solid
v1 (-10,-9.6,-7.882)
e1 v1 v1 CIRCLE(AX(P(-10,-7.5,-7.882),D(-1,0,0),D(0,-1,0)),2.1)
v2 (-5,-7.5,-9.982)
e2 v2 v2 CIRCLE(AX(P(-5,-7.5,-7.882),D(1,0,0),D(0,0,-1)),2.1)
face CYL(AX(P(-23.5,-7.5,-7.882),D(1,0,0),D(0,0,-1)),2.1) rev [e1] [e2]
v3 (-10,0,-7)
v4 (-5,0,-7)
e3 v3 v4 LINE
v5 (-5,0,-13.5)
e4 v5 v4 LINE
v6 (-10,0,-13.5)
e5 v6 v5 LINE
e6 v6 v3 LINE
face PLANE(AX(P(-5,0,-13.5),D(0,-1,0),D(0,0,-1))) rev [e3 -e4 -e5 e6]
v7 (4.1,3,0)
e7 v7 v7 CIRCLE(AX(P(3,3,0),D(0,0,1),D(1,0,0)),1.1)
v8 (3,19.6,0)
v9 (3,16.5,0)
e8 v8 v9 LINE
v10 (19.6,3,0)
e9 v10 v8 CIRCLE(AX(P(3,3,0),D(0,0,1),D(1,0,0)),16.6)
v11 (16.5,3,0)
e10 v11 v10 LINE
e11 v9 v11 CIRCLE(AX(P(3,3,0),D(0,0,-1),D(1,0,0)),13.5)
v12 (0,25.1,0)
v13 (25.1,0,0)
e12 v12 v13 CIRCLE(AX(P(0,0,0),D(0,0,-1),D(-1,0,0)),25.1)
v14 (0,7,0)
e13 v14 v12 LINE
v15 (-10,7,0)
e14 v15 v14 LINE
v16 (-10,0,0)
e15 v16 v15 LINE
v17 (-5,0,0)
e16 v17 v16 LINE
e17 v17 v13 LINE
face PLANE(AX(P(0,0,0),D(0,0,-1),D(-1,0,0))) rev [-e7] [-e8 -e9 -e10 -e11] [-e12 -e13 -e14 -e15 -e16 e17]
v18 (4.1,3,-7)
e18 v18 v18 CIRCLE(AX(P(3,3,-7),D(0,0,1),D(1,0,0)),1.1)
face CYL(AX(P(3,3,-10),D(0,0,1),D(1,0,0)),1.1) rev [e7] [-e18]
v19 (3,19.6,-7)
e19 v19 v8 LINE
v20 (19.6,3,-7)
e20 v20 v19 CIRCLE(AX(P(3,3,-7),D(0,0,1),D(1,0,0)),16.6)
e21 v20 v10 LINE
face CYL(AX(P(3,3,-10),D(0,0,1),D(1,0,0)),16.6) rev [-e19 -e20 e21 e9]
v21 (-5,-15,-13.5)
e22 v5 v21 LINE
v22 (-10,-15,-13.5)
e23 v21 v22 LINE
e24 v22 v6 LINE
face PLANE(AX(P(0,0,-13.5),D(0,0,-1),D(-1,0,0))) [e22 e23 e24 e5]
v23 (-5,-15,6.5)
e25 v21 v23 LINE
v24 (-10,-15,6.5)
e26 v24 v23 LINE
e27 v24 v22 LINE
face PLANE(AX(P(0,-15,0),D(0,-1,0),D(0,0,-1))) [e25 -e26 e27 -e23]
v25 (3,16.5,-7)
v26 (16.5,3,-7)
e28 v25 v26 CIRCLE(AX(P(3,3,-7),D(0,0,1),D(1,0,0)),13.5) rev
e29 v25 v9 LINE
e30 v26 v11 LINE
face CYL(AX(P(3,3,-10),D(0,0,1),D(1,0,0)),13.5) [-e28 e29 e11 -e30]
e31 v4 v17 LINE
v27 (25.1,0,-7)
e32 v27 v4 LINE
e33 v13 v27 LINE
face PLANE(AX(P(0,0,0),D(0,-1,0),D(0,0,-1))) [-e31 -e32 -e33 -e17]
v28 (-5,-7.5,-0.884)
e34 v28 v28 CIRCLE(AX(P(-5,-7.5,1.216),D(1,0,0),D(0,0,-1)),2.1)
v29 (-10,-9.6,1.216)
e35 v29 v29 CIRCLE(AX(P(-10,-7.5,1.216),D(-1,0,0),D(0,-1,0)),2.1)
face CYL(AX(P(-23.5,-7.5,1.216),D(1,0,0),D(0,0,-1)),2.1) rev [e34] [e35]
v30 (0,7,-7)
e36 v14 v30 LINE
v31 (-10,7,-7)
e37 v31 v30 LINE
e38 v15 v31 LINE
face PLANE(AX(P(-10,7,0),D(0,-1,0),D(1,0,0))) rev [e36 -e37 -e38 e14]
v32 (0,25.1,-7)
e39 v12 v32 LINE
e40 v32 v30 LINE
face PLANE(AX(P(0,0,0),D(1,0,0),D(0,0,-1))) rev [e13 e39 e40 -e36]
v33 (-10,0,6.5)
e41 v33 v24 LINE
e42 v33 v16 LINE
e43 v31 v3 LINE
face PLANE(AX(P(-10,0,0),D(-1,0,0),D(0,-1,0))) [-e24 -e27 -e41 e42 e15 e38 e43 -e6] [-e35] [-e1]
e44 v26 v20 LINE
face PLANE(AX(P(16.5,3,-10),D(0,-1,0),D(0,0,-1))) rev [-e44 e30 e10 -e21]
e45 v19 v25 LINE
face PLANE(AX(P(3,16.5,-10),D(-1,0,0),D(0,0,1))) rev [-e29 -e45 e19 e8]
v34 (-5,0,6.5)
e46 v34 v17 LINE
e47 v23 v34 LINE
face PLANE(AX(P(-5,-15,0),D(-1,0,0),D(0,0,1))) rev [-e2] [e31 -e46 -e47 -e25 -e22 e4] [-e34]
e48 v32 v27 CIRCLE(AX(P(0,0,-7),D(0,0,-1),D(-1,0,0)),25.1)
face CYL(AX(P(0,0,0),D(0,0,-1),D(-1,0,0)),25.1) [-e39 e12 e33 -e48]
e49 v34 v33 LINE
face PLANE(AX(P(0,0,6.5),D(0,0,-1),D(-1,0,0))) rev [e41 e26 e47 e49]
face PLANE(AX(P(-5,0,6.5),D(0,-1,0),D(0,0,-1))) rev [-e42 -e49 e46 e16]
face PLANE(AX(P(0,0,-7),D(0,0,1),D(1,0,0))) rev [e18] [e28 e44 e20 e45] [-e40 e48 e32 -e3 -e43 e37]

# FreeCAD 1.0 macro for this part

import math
import FreeCAD as App
import Part
import Sketcher
from FreeCAD import Vector

doc = App.newDocument("Part")
body = doc.addObject("PartDesign::Body", "Body")

sketch1 = body.newObject("Sketcher::SketchObject", "Sketch")
sketch1.AttachmentSupport = (doc.getObject("XZ_Plane"), [""])
sketch1.MapMode = "FlatFace"
sketch1.addGeometry(Part.LineSegment(Vector(0, -7, 0), Vector(0, 0, 0)), False)
sketch1.addGeometry(Part.LineSegment(Vector(0, 0, 0), Vector(25.1, 0, 0)), False)
sketch1.addGeometry(Part.LineSegment(Vector(25.1, 0, 0), Vector(25.1, -7, 0)), False)
sketch1.addGeometry(Part.LineSegment(Vector(25.1, -7, 0), Vector(0, -7, 0)), False)
sketch1.addConstraint(Sketcher.Constraint("Coincident", 0, 2, 1, 1))
sketch1.addConstraint(Sketcher.Constraint("Coincident", 1, 2, 2, 1))
sketch1.addConstraint(Sketcher.Constraint("Coincident", 2, 2, 3, 1))
sketch1.addConstraint(Sketcher.Constraint("Coincident", 3, 2, 0, 1))
sketch1.addConstraint(Sketcher.Constraint("Vertical", 0))
sketch1.addConstraint(Sketcher.Constraint("Horizontal", 1))
sketch1.addConstraint(Sketcher.Constraint("Vertical", 2))
sketch1.addConstraint(Sketcher.Constraint("Horizontal", 3))
sketch1.addConstraint(Sketcher.Constraint("Coincident", 0, 2, -1, 1))
sketch1.addConstraint(Sketcher.Constraint("DistanceY", 0, 1, 0, 2, 7.0))
sketch1.addConstraint(Sketcher.Constraint("DistanceX", 1, 1, 1, 2, 25.1))
revolution = body.newObject("PartDesign::Revolution", "Revolution")
revolution.Profile = sketch1
revolution.ReferenceAxis = (sketch1, ["V_Axis"])
revolution.Angle = 90

sketch2 = body.newObject("Sketcher::SketchObject", "Sketch001")
sketch2.AttachmentSupport = (doc.getObject("YZ_Plane"), [""])
sketch2.MapMode = "FlatFace"
sketch2.addGeometry(Part.LineSegment(Vector(7, -7, 0), Vector(0, -7, 0)), False)
sketch2.addGeometry(Part.LineSegment(Vector(0, -7, 0), Vector(0, 0, 0)), False)
sketch2.addGeometry(Part.LineSegment(Vector(0, 0, 0), Vector(7, 0, 0)), False)
sketch2.addGeometry(Part.LineSegment(Vector(7, 0, 0), Vector(7, -7, 0)), False)
sketch2.addConstraint(Sketcher.Constraint("Coincident", 0, 2, 1, 1))
sketch2.addConstraint(Sketcher.Constraint("Coincident", 1, 2, 2, 1))
sketch2.addConstraint(Sketcher.Constraint("Coincident", 2, 2, 3, 1))
sketch2.addConstraint(Sketcher.Constraint("Coincident", 3, 2, 0, 1))
sketch2.addConstraint(Sketcher.Constraint("Horizontal", 0))
sketch2.addConstraint(Sketcher.Constraint("Vertical", 1))
sketch2.addConstraint(Sketcher.Constraint("Horizontal", 2))
sketch2.addConstraint(Sketcher.Constraint("Vertical", 3))
sketch2.addConstraint(Sketcher.Constraint("Coincident", 1, 2, -1, 1))
sketch2.addConstraint(Sketcher.Constraint("Equal", 2, 1))
sketch2.addConstraint(Sketcher.Constraint("DistanceX", 0, 2, 0, 1, 7.0))
pad1 = body.newObject("PartDesign::Pad", "Pad")
pad1.Profile = sketch2
pad1.Length = 10
pad1.Reversed = True

sketch3 = body.newObject("Sketcher::SketchObject", "Sketch002")
sketch3.AttachmentSupport = (doc.getObject("XZ_Plane"), [""])
sketch3.MapMode = "FlatFace"
sketch3.addGeometry(Part.LineSegment(Vector(-5, -7, 0), Vector(-5, 0, 0)), False)
sketch3.addGeometry(Part.LineSegment(Vector(-5, 0, 0), Vector(-10, 0, 0)), False)
sketch3.addGeometry(Part.LineSegment(Vector(-10, 0, 0), Vector(-10, -7, 0)), False)
sketch3.addGeometry(Part.LineSegment(Vector(-10, -7, 0), Vector(-5, -7, 0)), False)
sketch3.addConstraint(Sketcher.Constraint("Coincident", 0, 2, 1, 1))
sketch3.addConstraint(Sketcher.Constraint("Coincident", 1, 2, 2, 1))
sketch3.addConstraint(Sketcher.Constraint("Coincident", 2, 2, 3, 1))
sketch3.addConstraint(Sketcher.Constraint("Coincident", 3, 2, 0, 1))
sketch3.addConstraint(Sketcher.Constraint("Vertical", 0))
sketch3.addConstraint(Sketcher.Constraint("Horizontal", 1))
sketch3.addConstraint(Sketcher.Constraint("Vertical", 2))
sketch3.addConstraint(Sketcher.Constraint("Horizontal", 3))
sketch3.addConstraint(Sketcher.Constraint("PointOnObject", 0, 2, -1))
sketch3.addConstraint(Sketcher.Constraint("DistanceX", 1, 2, 1, 1, 5.0))
sketch3.addConstraint(Sketcher.Constraint("DistanceY", 0, 1, 0, 2, 7.0))
sketch3.addConstraint(Sketcher.Constraint("DistanceX", 0, 2, -1, 1, 5.0))
pad2 = body.newObject("PartDesign::Pad", "Pad001")
pad2.Profile = sketch3
pad2.Length = 15

sketch4 = body.newObject("Sketcher::SketchObject", "Sketch003")
sketch4.AttachmentSupport = (doc.getObject("XY_Plane"), [""])
sketch4.MapMode = "FlatFace"
sketch4.addGeometry(Part.LineSegment(Vector(-10, 0, 0), Vector(-10, -15, 0)), False)
sketch4.addGeometry(Part.LineSegment(Vector(-10, -15, 0), Vector(-5, -15, 0)), False)
sketch4.addGeometry(Part.LineSegment(Vector(-5, -15, 0), Vector(-5, 0, 0)), False)
sketch4.addGeometry(Part.LineSegment(Vector(-5, 0, 0), Vector(-10, 0, 0)), False)
sketch4.addConstraint(Sketcher.Constraint("Coincident", 0, 2, 1, 1))
sketch4.addConstraint(Sketcher.Constraint("Coincident", 1, 2, 2, 1))
sketch4.addConstraint(Sketcher.Constraint("Coincident", 2, 2, 3, 1))
sketch4.addConstraint(Sketcher.Constraint("Coincident", 3, 2, 0, 1))
sketch4.addConstraint(Sketcher.Constraint("Vertical", 0))
sketch4.addConstraint(Sketcher.Constraint("Horizontal", 1))
sketch4.addConstraint(Sketcher.Constraint("Vertical", 2))
sketch4.addConstraint(Sketcher.Constraint("Horizontal", 3))
sketch4.addConstraint(Sketcher.Constraint("PointOnObject", 2, 2, -1))
sketch4.addConstraint(Sketcher.Constraint("DistanceX", 1, 1, 1, 2, 5.0))
sketch4.addConstraint(Sketcher.Constraint("DistanceY", 0, 2, 0, 1, 15.0))
sketch4.addConstraint(Sketcher.Constraint("DistanceX", 0, 2, -1, 1, 10.0))
pad3 = body.newObject("PartDesign::Pad", "Pad002")
pad3.Profile = sketch4
pad3.Length = 6.5

sketch5 = body.newObject("Sketcher::SketchObject", "Sketch004")
sketch5.AttachmentSupport = (doc.getObject("XY_Plane"), [""])
sketch5.MapMode = "FlatFace"
sketch5.AttachmentOffset = App.Placement(Vector(0, 0, -7), App.Rotation())
sketch5.addGeometry(Part.LineSegment(Vector(-5, 0, 0), Vector(-5, -15, 0)), False)
sketch5.addGeometry(Part.LineSegment(Vector(-5, -15, 0), Vector(-10, -15, 0)), False)
sketch5.addGeometry(Part.LineSegment(Vector(-10, -15, 0), Vector(-10, 0, 0)), False)
sketch5.addGeometry(Part.LineSegment(Vector(-10, 0, 0), Vector(-5, 0, 0)), False)
sketch5.addConstraint(Sketcher.Constraint("Coincident", 0, 2, 1, 1))
sketch5.addConstraint(Sketcher.Constraint("Coincident", 1, 2, 2, 1))
sketch5.addConstraint(Sketcher.Constraint("Coincident", 2, 2, 3, 1))
sketch5.addConstraint(Sketcher.Constraint("Coincident", 3, 2, 0, 1))
sketch5.addConstraint(Sketcher.Constraint("Vertical", 0))
sketch5.addConstraint(Sketcher.Constraint("Horizontal", 1))
sketch5.addConstraint(Sketcher.Constraint("Vertical", 2))
sketch5.addConstraint(Sketcher.Constraint("Horizontal", 3))
sketch5.addConstraint(Sketcher.Constraint("PointOnObject", 2, 2, -1))
sketch5.addConstraint(Sketcher.Constraint("DistanceX", 1, 2, 1, 1, 5.0))
sketch5.addConstraint(Sketcher.Constraint("DistanceY", 0, 2, 0, 1, 15.0))
sketch5.addConstraint(Sketcher.Constraint("DistanceX", 0, 2, -1, 1, 5.0))
pad4 = body.newObject("PartDesign::Pad", "Pad003")
pad4.Profile = sketch5
pad4.Length = 6.5
pad4.Reversed = True

sketch6 = body.newObject("Sketcher::SketchObject", "Sketch005")
sketch6.AttachmentSupport = (doc.getObject("YZ_Plane"), [""])
sketch6.MapMode = "FlatFace"
sketch6.AttachmentOffset = App.Placement(Vector(0, 0, -5), App.Rotation())
sketch6.addGeometry(Part.Circle(Vector(-7.5, 1.216, 0), Vector(0, 0, 1), 2.1), False)
sketch6.addGeometry(Part.Circle(Vector(-7.5, -7.882, 0), Vector(0, 0, 1), 2.1), False)
sketch6.addConstraint(Sketcher.Constraint("Equal", 0, 1))
sketch6.addConstraint(Sketcher.Constraint("Vertical", 0, 3, 1, 3))
sketch6.addConstraint(Sketcher.Constraint("Diameter", 0, 4.2))
sketch6.addConstraint(Sketcher.Constraint("DistanceX", 0, 3, -1, 1, 7.5))
sketch6.addConstraint(Sketcher.Constraint("DistanceY", -1, 1, 0, 3, 1.216))
sketch6.addConstraint(Sketcher.Constraint("DistanceY", 1, 3, -1, 1, 7.882))
pocket1 = body.newObject("PartDesign::Pocket", "Pocket")
pocket1.Profile = sketch6
pocket1.Length = 18.5

sketch7 = body.newObject("Sketcher::SketchObject", "Sketch006")
sketch7.AttachmentSupport = (doc.getObject("XY_Plane"), [""])
sketch7.MapMode = "FlatFace"
sketch7.addGeometry(Part.Circle(Vector(3, 3, 0), Vector(0, 0, 1), 1.1), False)
sketch7.addGeometry(Part.LineSegment(Vector(3, 19.6, 0), Vector(3, 16.5, 0)), False)
sketch7.addGeometry(Part.ArcOfCircle(Part.Circle(Vector(3, 3, 0), Vector(0, 0, 1), 13.5), math.radians(0), math.radians(90)), False)
sketch7.addGeometry(Part.LineSegment(Vector(16.5, 3, 0), Vector(19.6, 3, 0)), False)
sketch7.addGeometry(Part.ArcOfCircle(Part.Circle(Vector(3, 3, 0), Vector(0, 0, 1), 16.6), math.radians(0), math.radians(90)), False)
sketch7.addConstraint(Sketcher.Constraint("Coincident", 1, 2, 2, 2))
sketch7.addConstraint(Sketcher.Constraint("Coincident", 2, 1, 3, 1))
sketch7.addConstraint(Sketcher.Constraint("Coincident", 3, 2, 4, 1))
sketch7.addConstraint(Sketcher.Constraint("Coincident", 4, 2, 1, 1))
sketch7.addConstraint(Sketcher.Constraint("Vertical", 1))
sketch7.addConstraint(Sketcher.Constraint("Horizontal", 3))
sketch7.addConstraint(Sketcher.Constraint("Coincident", 2, 3, 0, 3))
sketch7.addConstraint(Sketcher.Constraint("Coincident", 4, 3, 0, 3))
sketch7.addConstraint(Sketcher.Constraint("Horizontal", 4, 3, 2, 1))
sketch7.addConstraint(Sketcher.Constraint("Vertical", 4, 3, 1, 2))
sketch7.addConstraint(Sketcher.Constraint("Diameter", 0, 2.2))
sketch7.addConstraint(Sketcher.Constraint("Radius", 2, 13.5))
sketch7.addConstraint(Sketcher.Constraint("Radius", 4, 16.6))
sketch7.addConstraint(Sketcher.Constraint("DistanceX", -1, 1, 0, 3, 3.0))
sketch7.addConstraint(Sketcher.Constraint("DistanceY", -1, 1, 0, 3, 3.0))
pocket2 = body.newObject("PartDesign::Pocket", "Pocket001")
pocket2.Profile = sketch7
pocket2.Length = 10

doc.recompute()
